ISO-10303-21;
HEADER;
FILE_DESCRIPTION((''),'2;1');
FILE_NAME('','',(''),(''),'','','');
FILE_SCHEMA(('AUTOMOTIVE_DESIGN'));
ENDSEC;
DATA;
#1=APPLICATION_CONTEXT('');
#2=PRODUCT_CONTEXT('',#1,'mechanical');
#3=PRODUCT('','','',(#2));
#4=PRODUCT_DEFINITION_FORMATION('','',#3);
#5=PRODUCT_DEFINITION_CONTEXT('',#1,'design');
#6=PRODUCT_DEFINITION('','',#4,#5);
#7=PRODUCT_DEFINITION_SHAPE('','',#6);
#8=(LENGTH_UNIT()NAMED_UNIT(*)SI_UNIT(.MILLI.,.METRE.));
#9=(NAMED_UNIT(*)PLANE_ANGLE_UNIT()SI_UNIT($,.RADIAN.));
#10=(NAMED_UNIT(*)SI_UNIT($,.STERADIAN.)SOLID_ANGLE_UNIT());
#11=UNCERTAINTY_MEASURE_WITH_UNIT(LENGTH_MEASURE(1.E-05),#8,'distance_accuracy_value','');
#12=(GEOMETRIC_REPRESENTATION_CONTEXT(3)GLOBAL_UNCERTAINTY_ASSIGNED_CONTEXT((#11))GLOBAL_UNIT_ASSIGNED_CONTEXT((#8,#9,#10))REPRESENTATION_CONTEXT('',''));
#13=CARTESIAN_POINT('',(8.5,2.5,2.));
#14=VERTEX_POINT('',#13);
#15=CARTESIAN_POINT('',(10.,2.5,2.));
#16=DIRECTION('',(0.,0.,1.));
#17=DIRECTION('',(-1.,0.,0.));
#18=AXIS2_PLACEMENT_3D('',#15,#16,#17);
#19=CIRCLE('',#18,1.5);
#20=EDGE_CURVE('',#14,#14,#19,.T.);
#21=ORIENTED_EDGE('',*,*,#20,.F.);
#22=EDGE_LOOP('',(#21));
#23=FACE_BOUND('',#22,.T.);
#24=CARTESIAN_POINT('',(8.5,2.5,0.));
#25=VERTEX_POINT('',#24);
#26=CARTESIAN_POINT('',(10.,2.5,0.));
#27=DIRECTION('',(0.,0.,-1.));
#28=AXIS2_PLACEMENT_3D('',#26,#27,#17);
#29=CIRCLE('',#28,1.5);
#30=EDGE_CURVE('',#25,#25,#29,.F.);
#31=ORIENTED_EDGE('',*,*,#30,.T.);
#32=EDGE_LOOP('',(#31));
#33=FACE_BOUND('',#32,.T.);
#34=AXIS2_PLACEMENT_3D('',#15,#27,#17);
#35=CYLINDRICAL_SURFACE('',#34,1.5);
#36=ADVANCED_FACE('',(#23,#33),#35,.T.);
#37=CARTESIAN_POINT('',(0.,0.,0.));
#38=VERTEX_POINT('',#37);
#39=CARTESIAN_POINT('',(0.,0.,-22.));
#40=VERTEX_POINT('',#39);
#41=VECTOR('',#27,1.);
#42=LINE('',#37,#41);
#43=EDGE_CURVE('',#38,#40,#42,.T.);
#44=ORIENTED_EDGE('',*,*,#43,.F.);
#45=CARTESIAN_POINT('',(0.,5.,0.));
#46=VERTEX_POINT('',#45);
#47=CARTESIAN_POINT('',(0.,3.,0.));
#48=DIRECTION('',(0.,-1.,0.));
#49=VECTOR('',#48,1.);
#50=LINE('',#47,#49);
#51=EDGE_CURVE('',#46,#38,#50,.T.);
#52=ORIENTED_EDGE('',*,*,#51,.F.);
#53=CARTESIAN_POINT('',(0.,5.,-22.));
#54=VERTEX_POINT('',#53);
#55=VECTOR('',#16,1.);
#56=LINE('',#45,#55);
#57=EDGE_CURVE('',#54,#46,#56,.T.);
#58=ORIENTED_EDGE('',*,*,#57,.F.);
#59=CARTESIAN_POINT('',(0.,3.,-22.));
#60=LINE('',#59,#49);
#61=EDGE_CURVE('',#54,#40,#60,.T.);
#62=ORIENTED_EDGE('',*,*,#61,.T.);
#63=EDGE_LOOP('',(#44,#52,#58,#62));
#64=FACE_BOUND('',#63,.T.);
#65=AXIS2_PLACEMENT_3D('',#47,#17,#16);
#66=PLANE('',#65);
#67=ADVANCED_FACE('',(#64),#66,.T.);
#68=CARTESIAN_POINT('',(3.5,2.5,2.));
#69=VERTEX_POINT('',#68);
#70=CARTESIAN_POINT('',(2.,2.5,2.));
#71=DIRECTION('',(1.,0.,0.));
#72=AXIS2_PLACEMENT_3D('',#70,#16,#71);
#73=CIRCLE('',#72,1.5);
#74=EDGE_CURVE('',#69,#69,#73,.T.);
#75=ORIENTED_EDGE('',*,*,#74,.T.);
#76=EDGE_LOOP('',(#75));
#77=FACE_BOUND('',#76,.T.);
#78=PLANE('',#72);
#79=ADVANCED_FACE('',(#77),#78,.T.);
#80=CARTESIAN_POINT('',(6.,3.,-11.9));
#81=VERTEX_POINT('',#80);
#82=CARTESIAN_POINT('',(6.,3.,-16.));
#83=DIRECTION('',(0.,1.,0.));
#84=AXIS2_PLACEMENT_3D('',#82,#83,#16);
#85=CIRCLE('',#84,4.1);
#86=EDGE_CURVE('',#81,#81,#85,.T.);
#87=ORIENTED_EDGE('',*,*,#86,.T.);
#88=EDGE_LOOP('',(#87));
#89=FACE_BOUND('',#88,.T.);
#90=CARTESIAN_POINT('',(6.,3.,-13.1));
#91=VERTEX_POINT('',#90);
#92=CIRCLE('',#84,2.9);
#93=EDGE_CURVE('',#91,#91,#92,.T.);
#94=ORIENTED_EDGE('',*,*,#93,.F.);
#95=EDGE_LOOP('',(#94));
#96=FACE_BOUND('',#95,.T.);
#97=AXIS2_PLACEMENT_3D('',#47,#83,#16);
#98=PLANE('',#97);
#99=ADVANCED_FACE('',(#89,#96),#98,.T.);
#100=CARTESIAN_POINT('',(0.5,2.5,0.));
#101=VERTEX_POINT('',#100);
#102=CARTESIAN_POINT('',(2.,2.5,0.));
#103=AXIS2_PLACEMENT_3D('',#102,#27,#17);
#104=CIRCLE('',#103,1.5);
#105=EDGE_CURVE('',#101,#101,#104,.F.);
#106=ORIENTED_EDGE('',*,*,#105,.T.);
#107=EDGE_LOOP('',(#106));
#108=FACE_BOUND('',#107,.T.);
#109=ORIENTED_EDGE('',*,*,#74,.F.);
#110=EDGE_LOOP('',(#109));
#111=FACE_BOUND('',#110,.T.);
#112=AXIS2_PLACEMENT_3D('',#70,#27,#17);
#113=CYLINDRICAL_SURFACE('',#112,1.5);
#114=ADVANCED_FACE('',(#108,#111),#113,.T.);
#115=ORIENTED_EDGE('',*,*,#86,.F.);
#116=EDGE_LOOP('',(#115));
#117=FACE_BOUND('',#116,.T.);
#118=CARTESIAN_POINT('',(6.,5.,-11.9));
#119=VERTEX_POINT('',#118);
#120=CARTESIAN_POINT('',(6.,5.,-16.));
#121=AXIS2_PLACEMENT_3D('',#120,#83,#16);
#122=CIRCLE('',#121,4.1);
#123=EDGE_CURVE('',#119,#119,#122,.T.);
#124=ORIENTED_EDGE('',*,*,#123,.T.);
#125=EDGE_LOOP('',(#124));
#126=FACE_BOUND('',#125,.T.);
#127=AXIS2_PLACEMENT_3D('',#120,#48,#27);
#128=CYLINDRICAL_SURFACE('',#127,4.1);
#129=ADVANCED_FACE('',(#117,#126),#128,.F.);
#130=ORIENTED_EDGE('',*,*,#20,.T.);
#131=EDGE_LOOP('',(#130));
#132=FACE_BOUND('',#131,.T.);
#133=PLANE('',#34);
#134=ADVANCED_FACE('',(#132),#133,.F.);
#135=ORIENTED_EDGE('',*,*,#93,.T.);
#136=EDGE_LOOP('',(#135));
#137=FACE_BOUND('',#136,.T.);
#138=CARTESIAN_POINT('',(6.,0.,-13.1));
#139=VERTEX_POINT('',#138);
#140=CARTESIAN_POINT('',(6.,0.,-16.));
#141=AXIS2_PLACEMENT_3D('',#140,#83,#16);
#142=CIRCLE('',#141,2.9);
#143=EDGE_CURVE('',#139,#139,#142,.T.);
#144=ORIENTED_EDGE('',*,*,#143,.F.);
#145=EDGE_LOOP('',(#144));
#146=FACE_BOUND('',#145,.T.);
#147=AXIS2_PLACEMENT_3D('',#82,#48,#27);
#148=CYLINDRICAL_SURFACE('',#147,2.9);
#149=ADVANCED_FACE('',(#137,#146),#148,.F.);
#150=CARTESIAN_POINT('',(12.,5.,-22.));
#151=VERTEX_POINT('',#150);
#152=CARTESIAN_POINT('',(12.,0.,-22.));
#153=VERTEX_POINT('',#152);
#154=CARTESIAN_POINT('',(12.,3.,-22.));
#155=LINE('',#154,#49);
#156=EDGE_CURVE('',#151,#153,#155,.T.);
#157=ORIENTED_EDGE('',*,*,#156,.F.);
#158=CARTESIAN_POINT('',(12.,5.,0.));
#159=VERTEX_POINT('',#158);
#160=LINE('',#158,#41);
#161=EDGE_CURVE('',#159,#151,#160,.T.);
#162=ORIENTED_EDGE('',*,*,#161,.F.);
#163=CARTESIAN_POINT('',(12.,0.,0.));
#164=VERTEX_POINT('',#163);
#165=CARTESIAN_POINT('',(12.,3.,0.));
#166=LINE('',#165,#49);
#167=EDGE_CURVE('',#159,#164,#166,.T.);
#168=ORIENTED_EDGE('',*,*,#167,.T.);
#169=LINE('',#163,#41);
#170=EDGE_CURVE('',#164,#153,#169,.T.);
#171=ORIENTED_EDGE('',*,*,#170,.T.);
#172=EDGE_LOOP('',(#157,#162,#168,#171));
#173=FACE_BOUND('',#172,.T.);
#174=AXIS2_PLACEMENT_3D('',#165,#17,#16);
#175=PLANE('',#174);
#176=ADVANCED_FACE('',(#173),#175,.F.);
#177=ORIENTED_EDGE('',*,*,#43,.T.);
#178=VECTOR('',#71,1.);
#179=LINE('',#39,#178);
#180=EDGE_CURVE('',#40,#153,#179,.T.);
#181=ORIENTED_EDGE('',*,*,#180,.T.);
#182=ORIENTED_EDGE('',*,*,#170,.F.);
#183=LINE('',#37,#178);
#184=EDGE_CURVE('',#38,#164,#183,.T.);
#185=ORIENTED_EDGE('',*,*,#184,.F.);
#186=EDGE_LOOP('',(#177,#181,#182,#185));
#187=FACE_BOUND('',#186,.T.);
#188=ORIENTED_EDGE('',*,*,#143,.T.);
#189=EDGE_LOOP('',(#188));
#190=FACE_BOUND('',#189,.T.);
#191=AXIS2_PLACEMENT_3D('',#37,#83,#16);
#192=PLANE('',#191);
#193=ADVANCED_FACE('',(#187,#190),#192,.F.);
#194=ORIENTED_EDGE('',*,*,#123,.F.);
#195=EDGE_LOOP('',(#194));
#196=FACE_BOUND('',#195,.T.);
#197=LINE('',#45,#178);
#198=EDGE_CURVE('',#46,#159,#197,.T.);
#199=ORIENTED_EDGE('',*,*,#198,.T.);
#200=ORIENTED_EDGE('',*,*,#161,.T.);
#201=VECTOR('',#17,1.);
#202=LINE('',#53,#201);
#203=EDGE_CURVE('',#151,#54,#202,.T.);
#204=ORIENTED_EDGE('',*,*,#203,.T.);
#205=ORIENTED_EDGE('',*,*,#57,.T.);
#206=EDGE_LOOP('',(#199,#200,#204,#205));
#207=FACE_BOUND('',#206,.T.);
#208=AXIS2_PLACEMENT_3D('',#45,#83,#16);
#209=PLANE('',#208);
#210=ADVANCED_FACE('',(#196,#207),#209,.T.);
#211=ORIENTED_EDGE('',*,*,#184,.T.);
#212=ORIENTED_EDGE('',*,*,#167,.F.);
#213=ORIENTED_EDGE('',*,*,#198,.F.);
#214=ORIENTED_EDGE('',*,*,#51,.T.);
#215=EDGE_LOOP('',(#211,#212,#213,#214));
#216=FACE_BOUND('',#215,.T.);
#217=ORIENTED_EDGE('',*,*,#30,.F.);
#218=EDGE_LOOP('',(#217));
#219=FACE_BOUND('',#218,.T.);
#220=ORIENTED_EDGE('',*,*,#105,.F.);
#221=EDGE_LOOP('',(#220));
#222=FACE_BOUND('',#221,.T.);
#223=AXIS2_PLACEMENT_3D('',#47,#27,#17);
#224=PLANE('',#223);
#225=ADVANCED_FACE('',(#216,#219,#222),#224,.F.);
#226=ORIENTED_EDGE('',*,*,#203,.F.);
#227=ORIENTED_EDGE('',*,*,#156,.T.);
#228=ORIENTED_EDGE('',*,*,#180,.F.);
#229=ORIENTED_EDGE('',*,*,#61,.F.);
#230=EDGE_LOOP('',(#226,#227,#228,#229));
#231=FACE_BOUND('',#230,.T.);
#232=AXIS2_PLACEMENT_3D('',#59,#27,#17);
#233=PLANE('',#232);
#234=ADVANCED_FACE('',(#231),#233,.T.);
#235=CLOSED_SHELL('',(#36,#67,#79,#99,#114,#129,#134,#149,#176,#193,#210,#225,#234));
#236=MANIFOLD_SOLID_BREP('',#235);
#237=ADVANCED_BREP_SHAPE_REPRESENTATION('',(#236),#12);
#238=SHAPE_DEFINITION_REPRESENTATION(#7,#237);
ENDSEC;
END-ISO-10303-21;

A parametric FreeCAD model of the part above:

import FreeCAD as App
import Part
import Sketcher

doc = App.newDocument("Part")
body = doc.addObject("PartDesign::Body", "Body")

sketch1 = doc.addObject("Sketcher::SketchObject", "Sketch")
body.addObject(sketch1)
sketch1.AttachmentSupport = (doc.XZ_Plane, [""])
sketch1.MapMode = "FlatFace"
sketch1.addGeometry([
    Part.LineSegment(App.Vector(0, -22, 0), App.Vector(0, 0, 0)),
    Part.LineSegment(App.Vector(0, 0, 0), App.Vector(12, 0, 0)),
    Part.LineSegment(App.Vector(12, 0, 0), App.Vector(12, -22, 0)),
    Part.LineSegment(App.Vector(12, -22, 0), App.Vector(0, -22, 0)),
    Part.Circle(App.Vector(6, -16, 0), App.Vector(0, 0, 1), 2.9),
], False)
sketch1.addConstraint([
    Sketcher.Constraint("Coincident", 0, 2, 1, 1),
    Sketcher.Constraint("Coincident", 1, 2, 2, 1),
    Sketcher.Constraint("Coincident", 2, 2, 3, 1),
    Sketcher.Constraint("Coincident", 3, 2, 0, 1),
    Sketcher.Constraint("Vertical", 0),
    Sketcher.Constraint("Horizontal", 1),
    Sketcher.Constraint("Vertical", 2),
    Sketcher.Constraint("Horizontal", 3),
    Sketcher.Constraint("Coincident", 0, 2, -1, 1),
    Sketcher.Constraint("Diameter", 4, 5.8),
    Sketcher.Constraint("DistanceX", 1, 1, 1, 2, 12.0),
    Sketcher.Constraint("DistanceY", 0, 1, 0, 2, 22.0),
    Sketcher.Constraint("DistanceX", -1, 1, 4, 3, 6.0),
    Sketcher.Constraint("DistanceY", 4, 3, -1, 1, 16.0),
])
pad1 = doc.addObject("PartDesign::Pad", "Pad")
body.addObject(pad1)
pad1.Profile = sketch1
pad1.Length = 3
pad1.Reversed = True

sketch2 = doc.addObject("Sketcher::SketchObject", "Sketch001")
body.addObject(sketch2)
sketch2.AttachmentSupport = (doc.XZ_Plane, [""])
sketch2.MapMode = "FlatFace"
sketch2.AttachmentOffset = App.Placement(App.Vector(0, 0, -3), App.Rotation())
sketch2.addGeometry([
    Part.LineSegment(App.Vector(0, -22, 0), App.Vector(0, 0, 0)),
    Part.LineSegment(App.Vector(0, 0, 0), App.Vector(12, 0, 0)),
    Part.LineSegment(App.Vector(12, 0, 0), App.Vector(12, -22, 0)),
    Part.LineSegment(App.Vector(12, -22, 0), App.Vector(0, -22, 0)),
    Part.Circle(App.Vector(6, -16, 0), App.Vector(0, 0, 1), 4.1),
], False)
sketch2.addConstraint([
    Sketcher.Constraint("Coincident", 0, 2, 1, 1),
    Sketcher.Constraint("Coincident", 1, 2, 2, 1),
    Sketcher.Constraint("Coincident", 2, 2, 3, 1),
    Sketcher.Constraint("Coincident", 3, 2, 0, 1),
    Sketcher.Constraint("Vertical", 0),
    Sketcher.Constraint("Horizontal", 1),
    Sketcher.Constraint("Vertical", 2),
    Sketcher.Constraint("Horizontal", 3),
    Sketcher.Constraint("Coincident", 0, 2, -1, 1),
    Sketcher.Constraint("Diameter", 4, 8.2),
    Sketcher.Constraint("DistanceX", 1, 1, 1, 2, 12.0),
    Sketcher.Constraint("DistanceY", 0, 1, 0, 2, 22.0),
    Sketcher.Constraint("DistanceX", -1, 1, 4, 3, 6.0),
    Sketcher.Constraint("DistanceY", 4, 3, -1, 1, 16.0),
])
pad2 = doc.addObject("PartDesign::Pad", "Pad001")
body.addObject(pad2)
pad2.Profile = sketch2
pad2.Length = 2
pad2.Reversed = True

sketch3 = doc.addObject("Sketcher::SketchObject", "Sketch002")
body.addObject(sketch3)
sketch3.AttachmentSupport = (doc.XY_Plane, [""])
sketch3.MapMode = "FlatFace"
sketch3.addGeometry([
    Part.Circle(App.Vector(2, 2.5, 0), App.Vector(0, 0, 1), 1.5),
    Part.Circle(App.Vector(10, 2.5, 0), App.Vector(0, 0, 1), 1.5),
], False)
sketch3.addConstraint([
    Sketcher.Constraint("Equal", 0, 1),
    Sketcher.Constraint("Horizontal", 0, 3, 1, 3),
    Sketcher.Constraint("Diameter", 0, 3.0),
    Sketcher.Constraint("DistanceX", -1, 1, 0, 3, 2.0),
    Sketcher.Constraint("DistanceX", -1, 1, 1, 3, 10.0),
    Sketcher.Constraint("DistanceY", -1, 1, 0, 3, 2.5),
])
pad3 = doc.addObject("PartDesign::Pad", "Pad002")
body.addObject(pad3)
pad3.Profile = sketch3
pad3.Length = 2

doc.recompute()
